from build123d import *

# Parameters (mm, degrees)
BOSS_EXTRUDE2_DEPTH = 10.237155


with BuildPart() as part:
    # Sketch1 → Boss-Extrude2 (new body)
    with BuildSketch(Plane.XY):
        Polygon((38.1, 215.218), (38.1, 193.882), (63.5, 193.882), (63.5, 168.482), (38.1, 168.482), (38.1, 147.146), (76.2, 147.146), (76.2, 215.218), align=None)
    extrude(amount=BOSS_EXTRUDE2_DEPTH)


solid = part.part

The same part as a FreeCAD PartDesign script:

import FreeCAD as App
import Part
import Sketcher
from FreeCAD import Vector
Q = App.Units.Quantity


def add_polygon(sketch, points):
    """Adds a closed chain of lines whose ends are joined by coincident constraints."""
    first, n = sketch.GeometryCount, len(points)
    for a, b in zip(points, points[1:] + points[:1]):
        sketch.addGeometry(Part.LineSegment(App.Vector(*a, 0), App.Vector(*b, 0)), False)
    for i in range(n):
        sketch.addConstraint(Sketcher.Constraint("Coincident", first + i, 2, first + (i + 1) % n, 1))

doc = App.newDocument("Part")
body = doc.addObject("PartDesign::Body", "Body")

# Sketch on XY plane
sketch1 = doc.addObject("Sketcher::SketchObject", "Sketch")
body.addObject(sketch1)
sketch1.AttachmentSupport = (doc.XY_Plane, [""])
sketch1.MapMode = "FlatFace"
add_polygon(sketch1, [(38, 215), (38, 194), (64, 194), (64, 168), (38, 168), (38, 147), (76, 147), (76, 215)])  # lines 0-7
sketch1.addConstraint([
    Sketcher.Constraint("Vertical", 0),
    Sketcher.Constraint("Horizontal", 1),
    Sketcher.Constraint("Vertical", 2),
    Sketcher.Constraint("Horizontal", 3),
    Sketcher.Constraint("Vertical", 4),
    Sketcher.Constraint("Horizontal", 5),
    Sketcher.Constraint("Vertical", 6),
    Sketcher.Constraint("Horizontal", 7),
    Sketcher.Constraint("Vertical", 0, 2, 3, 2),
    Sketcher.Constraint("Equal", 3, 2),
    Sketcher.Constraint("Equal", 0, 4),
    Sketcher.Constraint("DistanceX", 1, 1, 1, 2, Q("1 in")),
    Sketcher.Constraint("DistanceX", 5, 1, 5, 2, Q("1.5 in")),
    Sketcher.Constraint("DistanceX", -1, 1, 5, 2, Q("3 in")),
    Sketcher.Constraint("DistanceY", 0, 2, 0, 1, Q("0.84 in")),
    Sketcher.Constraint("DistanceY", -1, 1, 0, 2, 193.882),
])
pad1 = doc.addObject("PartDesign::Pad", "Pad")
body.addObject(pad1)
pad1.Profile = sketch1
pad1.Length = 10.237155

doc.recompute()
